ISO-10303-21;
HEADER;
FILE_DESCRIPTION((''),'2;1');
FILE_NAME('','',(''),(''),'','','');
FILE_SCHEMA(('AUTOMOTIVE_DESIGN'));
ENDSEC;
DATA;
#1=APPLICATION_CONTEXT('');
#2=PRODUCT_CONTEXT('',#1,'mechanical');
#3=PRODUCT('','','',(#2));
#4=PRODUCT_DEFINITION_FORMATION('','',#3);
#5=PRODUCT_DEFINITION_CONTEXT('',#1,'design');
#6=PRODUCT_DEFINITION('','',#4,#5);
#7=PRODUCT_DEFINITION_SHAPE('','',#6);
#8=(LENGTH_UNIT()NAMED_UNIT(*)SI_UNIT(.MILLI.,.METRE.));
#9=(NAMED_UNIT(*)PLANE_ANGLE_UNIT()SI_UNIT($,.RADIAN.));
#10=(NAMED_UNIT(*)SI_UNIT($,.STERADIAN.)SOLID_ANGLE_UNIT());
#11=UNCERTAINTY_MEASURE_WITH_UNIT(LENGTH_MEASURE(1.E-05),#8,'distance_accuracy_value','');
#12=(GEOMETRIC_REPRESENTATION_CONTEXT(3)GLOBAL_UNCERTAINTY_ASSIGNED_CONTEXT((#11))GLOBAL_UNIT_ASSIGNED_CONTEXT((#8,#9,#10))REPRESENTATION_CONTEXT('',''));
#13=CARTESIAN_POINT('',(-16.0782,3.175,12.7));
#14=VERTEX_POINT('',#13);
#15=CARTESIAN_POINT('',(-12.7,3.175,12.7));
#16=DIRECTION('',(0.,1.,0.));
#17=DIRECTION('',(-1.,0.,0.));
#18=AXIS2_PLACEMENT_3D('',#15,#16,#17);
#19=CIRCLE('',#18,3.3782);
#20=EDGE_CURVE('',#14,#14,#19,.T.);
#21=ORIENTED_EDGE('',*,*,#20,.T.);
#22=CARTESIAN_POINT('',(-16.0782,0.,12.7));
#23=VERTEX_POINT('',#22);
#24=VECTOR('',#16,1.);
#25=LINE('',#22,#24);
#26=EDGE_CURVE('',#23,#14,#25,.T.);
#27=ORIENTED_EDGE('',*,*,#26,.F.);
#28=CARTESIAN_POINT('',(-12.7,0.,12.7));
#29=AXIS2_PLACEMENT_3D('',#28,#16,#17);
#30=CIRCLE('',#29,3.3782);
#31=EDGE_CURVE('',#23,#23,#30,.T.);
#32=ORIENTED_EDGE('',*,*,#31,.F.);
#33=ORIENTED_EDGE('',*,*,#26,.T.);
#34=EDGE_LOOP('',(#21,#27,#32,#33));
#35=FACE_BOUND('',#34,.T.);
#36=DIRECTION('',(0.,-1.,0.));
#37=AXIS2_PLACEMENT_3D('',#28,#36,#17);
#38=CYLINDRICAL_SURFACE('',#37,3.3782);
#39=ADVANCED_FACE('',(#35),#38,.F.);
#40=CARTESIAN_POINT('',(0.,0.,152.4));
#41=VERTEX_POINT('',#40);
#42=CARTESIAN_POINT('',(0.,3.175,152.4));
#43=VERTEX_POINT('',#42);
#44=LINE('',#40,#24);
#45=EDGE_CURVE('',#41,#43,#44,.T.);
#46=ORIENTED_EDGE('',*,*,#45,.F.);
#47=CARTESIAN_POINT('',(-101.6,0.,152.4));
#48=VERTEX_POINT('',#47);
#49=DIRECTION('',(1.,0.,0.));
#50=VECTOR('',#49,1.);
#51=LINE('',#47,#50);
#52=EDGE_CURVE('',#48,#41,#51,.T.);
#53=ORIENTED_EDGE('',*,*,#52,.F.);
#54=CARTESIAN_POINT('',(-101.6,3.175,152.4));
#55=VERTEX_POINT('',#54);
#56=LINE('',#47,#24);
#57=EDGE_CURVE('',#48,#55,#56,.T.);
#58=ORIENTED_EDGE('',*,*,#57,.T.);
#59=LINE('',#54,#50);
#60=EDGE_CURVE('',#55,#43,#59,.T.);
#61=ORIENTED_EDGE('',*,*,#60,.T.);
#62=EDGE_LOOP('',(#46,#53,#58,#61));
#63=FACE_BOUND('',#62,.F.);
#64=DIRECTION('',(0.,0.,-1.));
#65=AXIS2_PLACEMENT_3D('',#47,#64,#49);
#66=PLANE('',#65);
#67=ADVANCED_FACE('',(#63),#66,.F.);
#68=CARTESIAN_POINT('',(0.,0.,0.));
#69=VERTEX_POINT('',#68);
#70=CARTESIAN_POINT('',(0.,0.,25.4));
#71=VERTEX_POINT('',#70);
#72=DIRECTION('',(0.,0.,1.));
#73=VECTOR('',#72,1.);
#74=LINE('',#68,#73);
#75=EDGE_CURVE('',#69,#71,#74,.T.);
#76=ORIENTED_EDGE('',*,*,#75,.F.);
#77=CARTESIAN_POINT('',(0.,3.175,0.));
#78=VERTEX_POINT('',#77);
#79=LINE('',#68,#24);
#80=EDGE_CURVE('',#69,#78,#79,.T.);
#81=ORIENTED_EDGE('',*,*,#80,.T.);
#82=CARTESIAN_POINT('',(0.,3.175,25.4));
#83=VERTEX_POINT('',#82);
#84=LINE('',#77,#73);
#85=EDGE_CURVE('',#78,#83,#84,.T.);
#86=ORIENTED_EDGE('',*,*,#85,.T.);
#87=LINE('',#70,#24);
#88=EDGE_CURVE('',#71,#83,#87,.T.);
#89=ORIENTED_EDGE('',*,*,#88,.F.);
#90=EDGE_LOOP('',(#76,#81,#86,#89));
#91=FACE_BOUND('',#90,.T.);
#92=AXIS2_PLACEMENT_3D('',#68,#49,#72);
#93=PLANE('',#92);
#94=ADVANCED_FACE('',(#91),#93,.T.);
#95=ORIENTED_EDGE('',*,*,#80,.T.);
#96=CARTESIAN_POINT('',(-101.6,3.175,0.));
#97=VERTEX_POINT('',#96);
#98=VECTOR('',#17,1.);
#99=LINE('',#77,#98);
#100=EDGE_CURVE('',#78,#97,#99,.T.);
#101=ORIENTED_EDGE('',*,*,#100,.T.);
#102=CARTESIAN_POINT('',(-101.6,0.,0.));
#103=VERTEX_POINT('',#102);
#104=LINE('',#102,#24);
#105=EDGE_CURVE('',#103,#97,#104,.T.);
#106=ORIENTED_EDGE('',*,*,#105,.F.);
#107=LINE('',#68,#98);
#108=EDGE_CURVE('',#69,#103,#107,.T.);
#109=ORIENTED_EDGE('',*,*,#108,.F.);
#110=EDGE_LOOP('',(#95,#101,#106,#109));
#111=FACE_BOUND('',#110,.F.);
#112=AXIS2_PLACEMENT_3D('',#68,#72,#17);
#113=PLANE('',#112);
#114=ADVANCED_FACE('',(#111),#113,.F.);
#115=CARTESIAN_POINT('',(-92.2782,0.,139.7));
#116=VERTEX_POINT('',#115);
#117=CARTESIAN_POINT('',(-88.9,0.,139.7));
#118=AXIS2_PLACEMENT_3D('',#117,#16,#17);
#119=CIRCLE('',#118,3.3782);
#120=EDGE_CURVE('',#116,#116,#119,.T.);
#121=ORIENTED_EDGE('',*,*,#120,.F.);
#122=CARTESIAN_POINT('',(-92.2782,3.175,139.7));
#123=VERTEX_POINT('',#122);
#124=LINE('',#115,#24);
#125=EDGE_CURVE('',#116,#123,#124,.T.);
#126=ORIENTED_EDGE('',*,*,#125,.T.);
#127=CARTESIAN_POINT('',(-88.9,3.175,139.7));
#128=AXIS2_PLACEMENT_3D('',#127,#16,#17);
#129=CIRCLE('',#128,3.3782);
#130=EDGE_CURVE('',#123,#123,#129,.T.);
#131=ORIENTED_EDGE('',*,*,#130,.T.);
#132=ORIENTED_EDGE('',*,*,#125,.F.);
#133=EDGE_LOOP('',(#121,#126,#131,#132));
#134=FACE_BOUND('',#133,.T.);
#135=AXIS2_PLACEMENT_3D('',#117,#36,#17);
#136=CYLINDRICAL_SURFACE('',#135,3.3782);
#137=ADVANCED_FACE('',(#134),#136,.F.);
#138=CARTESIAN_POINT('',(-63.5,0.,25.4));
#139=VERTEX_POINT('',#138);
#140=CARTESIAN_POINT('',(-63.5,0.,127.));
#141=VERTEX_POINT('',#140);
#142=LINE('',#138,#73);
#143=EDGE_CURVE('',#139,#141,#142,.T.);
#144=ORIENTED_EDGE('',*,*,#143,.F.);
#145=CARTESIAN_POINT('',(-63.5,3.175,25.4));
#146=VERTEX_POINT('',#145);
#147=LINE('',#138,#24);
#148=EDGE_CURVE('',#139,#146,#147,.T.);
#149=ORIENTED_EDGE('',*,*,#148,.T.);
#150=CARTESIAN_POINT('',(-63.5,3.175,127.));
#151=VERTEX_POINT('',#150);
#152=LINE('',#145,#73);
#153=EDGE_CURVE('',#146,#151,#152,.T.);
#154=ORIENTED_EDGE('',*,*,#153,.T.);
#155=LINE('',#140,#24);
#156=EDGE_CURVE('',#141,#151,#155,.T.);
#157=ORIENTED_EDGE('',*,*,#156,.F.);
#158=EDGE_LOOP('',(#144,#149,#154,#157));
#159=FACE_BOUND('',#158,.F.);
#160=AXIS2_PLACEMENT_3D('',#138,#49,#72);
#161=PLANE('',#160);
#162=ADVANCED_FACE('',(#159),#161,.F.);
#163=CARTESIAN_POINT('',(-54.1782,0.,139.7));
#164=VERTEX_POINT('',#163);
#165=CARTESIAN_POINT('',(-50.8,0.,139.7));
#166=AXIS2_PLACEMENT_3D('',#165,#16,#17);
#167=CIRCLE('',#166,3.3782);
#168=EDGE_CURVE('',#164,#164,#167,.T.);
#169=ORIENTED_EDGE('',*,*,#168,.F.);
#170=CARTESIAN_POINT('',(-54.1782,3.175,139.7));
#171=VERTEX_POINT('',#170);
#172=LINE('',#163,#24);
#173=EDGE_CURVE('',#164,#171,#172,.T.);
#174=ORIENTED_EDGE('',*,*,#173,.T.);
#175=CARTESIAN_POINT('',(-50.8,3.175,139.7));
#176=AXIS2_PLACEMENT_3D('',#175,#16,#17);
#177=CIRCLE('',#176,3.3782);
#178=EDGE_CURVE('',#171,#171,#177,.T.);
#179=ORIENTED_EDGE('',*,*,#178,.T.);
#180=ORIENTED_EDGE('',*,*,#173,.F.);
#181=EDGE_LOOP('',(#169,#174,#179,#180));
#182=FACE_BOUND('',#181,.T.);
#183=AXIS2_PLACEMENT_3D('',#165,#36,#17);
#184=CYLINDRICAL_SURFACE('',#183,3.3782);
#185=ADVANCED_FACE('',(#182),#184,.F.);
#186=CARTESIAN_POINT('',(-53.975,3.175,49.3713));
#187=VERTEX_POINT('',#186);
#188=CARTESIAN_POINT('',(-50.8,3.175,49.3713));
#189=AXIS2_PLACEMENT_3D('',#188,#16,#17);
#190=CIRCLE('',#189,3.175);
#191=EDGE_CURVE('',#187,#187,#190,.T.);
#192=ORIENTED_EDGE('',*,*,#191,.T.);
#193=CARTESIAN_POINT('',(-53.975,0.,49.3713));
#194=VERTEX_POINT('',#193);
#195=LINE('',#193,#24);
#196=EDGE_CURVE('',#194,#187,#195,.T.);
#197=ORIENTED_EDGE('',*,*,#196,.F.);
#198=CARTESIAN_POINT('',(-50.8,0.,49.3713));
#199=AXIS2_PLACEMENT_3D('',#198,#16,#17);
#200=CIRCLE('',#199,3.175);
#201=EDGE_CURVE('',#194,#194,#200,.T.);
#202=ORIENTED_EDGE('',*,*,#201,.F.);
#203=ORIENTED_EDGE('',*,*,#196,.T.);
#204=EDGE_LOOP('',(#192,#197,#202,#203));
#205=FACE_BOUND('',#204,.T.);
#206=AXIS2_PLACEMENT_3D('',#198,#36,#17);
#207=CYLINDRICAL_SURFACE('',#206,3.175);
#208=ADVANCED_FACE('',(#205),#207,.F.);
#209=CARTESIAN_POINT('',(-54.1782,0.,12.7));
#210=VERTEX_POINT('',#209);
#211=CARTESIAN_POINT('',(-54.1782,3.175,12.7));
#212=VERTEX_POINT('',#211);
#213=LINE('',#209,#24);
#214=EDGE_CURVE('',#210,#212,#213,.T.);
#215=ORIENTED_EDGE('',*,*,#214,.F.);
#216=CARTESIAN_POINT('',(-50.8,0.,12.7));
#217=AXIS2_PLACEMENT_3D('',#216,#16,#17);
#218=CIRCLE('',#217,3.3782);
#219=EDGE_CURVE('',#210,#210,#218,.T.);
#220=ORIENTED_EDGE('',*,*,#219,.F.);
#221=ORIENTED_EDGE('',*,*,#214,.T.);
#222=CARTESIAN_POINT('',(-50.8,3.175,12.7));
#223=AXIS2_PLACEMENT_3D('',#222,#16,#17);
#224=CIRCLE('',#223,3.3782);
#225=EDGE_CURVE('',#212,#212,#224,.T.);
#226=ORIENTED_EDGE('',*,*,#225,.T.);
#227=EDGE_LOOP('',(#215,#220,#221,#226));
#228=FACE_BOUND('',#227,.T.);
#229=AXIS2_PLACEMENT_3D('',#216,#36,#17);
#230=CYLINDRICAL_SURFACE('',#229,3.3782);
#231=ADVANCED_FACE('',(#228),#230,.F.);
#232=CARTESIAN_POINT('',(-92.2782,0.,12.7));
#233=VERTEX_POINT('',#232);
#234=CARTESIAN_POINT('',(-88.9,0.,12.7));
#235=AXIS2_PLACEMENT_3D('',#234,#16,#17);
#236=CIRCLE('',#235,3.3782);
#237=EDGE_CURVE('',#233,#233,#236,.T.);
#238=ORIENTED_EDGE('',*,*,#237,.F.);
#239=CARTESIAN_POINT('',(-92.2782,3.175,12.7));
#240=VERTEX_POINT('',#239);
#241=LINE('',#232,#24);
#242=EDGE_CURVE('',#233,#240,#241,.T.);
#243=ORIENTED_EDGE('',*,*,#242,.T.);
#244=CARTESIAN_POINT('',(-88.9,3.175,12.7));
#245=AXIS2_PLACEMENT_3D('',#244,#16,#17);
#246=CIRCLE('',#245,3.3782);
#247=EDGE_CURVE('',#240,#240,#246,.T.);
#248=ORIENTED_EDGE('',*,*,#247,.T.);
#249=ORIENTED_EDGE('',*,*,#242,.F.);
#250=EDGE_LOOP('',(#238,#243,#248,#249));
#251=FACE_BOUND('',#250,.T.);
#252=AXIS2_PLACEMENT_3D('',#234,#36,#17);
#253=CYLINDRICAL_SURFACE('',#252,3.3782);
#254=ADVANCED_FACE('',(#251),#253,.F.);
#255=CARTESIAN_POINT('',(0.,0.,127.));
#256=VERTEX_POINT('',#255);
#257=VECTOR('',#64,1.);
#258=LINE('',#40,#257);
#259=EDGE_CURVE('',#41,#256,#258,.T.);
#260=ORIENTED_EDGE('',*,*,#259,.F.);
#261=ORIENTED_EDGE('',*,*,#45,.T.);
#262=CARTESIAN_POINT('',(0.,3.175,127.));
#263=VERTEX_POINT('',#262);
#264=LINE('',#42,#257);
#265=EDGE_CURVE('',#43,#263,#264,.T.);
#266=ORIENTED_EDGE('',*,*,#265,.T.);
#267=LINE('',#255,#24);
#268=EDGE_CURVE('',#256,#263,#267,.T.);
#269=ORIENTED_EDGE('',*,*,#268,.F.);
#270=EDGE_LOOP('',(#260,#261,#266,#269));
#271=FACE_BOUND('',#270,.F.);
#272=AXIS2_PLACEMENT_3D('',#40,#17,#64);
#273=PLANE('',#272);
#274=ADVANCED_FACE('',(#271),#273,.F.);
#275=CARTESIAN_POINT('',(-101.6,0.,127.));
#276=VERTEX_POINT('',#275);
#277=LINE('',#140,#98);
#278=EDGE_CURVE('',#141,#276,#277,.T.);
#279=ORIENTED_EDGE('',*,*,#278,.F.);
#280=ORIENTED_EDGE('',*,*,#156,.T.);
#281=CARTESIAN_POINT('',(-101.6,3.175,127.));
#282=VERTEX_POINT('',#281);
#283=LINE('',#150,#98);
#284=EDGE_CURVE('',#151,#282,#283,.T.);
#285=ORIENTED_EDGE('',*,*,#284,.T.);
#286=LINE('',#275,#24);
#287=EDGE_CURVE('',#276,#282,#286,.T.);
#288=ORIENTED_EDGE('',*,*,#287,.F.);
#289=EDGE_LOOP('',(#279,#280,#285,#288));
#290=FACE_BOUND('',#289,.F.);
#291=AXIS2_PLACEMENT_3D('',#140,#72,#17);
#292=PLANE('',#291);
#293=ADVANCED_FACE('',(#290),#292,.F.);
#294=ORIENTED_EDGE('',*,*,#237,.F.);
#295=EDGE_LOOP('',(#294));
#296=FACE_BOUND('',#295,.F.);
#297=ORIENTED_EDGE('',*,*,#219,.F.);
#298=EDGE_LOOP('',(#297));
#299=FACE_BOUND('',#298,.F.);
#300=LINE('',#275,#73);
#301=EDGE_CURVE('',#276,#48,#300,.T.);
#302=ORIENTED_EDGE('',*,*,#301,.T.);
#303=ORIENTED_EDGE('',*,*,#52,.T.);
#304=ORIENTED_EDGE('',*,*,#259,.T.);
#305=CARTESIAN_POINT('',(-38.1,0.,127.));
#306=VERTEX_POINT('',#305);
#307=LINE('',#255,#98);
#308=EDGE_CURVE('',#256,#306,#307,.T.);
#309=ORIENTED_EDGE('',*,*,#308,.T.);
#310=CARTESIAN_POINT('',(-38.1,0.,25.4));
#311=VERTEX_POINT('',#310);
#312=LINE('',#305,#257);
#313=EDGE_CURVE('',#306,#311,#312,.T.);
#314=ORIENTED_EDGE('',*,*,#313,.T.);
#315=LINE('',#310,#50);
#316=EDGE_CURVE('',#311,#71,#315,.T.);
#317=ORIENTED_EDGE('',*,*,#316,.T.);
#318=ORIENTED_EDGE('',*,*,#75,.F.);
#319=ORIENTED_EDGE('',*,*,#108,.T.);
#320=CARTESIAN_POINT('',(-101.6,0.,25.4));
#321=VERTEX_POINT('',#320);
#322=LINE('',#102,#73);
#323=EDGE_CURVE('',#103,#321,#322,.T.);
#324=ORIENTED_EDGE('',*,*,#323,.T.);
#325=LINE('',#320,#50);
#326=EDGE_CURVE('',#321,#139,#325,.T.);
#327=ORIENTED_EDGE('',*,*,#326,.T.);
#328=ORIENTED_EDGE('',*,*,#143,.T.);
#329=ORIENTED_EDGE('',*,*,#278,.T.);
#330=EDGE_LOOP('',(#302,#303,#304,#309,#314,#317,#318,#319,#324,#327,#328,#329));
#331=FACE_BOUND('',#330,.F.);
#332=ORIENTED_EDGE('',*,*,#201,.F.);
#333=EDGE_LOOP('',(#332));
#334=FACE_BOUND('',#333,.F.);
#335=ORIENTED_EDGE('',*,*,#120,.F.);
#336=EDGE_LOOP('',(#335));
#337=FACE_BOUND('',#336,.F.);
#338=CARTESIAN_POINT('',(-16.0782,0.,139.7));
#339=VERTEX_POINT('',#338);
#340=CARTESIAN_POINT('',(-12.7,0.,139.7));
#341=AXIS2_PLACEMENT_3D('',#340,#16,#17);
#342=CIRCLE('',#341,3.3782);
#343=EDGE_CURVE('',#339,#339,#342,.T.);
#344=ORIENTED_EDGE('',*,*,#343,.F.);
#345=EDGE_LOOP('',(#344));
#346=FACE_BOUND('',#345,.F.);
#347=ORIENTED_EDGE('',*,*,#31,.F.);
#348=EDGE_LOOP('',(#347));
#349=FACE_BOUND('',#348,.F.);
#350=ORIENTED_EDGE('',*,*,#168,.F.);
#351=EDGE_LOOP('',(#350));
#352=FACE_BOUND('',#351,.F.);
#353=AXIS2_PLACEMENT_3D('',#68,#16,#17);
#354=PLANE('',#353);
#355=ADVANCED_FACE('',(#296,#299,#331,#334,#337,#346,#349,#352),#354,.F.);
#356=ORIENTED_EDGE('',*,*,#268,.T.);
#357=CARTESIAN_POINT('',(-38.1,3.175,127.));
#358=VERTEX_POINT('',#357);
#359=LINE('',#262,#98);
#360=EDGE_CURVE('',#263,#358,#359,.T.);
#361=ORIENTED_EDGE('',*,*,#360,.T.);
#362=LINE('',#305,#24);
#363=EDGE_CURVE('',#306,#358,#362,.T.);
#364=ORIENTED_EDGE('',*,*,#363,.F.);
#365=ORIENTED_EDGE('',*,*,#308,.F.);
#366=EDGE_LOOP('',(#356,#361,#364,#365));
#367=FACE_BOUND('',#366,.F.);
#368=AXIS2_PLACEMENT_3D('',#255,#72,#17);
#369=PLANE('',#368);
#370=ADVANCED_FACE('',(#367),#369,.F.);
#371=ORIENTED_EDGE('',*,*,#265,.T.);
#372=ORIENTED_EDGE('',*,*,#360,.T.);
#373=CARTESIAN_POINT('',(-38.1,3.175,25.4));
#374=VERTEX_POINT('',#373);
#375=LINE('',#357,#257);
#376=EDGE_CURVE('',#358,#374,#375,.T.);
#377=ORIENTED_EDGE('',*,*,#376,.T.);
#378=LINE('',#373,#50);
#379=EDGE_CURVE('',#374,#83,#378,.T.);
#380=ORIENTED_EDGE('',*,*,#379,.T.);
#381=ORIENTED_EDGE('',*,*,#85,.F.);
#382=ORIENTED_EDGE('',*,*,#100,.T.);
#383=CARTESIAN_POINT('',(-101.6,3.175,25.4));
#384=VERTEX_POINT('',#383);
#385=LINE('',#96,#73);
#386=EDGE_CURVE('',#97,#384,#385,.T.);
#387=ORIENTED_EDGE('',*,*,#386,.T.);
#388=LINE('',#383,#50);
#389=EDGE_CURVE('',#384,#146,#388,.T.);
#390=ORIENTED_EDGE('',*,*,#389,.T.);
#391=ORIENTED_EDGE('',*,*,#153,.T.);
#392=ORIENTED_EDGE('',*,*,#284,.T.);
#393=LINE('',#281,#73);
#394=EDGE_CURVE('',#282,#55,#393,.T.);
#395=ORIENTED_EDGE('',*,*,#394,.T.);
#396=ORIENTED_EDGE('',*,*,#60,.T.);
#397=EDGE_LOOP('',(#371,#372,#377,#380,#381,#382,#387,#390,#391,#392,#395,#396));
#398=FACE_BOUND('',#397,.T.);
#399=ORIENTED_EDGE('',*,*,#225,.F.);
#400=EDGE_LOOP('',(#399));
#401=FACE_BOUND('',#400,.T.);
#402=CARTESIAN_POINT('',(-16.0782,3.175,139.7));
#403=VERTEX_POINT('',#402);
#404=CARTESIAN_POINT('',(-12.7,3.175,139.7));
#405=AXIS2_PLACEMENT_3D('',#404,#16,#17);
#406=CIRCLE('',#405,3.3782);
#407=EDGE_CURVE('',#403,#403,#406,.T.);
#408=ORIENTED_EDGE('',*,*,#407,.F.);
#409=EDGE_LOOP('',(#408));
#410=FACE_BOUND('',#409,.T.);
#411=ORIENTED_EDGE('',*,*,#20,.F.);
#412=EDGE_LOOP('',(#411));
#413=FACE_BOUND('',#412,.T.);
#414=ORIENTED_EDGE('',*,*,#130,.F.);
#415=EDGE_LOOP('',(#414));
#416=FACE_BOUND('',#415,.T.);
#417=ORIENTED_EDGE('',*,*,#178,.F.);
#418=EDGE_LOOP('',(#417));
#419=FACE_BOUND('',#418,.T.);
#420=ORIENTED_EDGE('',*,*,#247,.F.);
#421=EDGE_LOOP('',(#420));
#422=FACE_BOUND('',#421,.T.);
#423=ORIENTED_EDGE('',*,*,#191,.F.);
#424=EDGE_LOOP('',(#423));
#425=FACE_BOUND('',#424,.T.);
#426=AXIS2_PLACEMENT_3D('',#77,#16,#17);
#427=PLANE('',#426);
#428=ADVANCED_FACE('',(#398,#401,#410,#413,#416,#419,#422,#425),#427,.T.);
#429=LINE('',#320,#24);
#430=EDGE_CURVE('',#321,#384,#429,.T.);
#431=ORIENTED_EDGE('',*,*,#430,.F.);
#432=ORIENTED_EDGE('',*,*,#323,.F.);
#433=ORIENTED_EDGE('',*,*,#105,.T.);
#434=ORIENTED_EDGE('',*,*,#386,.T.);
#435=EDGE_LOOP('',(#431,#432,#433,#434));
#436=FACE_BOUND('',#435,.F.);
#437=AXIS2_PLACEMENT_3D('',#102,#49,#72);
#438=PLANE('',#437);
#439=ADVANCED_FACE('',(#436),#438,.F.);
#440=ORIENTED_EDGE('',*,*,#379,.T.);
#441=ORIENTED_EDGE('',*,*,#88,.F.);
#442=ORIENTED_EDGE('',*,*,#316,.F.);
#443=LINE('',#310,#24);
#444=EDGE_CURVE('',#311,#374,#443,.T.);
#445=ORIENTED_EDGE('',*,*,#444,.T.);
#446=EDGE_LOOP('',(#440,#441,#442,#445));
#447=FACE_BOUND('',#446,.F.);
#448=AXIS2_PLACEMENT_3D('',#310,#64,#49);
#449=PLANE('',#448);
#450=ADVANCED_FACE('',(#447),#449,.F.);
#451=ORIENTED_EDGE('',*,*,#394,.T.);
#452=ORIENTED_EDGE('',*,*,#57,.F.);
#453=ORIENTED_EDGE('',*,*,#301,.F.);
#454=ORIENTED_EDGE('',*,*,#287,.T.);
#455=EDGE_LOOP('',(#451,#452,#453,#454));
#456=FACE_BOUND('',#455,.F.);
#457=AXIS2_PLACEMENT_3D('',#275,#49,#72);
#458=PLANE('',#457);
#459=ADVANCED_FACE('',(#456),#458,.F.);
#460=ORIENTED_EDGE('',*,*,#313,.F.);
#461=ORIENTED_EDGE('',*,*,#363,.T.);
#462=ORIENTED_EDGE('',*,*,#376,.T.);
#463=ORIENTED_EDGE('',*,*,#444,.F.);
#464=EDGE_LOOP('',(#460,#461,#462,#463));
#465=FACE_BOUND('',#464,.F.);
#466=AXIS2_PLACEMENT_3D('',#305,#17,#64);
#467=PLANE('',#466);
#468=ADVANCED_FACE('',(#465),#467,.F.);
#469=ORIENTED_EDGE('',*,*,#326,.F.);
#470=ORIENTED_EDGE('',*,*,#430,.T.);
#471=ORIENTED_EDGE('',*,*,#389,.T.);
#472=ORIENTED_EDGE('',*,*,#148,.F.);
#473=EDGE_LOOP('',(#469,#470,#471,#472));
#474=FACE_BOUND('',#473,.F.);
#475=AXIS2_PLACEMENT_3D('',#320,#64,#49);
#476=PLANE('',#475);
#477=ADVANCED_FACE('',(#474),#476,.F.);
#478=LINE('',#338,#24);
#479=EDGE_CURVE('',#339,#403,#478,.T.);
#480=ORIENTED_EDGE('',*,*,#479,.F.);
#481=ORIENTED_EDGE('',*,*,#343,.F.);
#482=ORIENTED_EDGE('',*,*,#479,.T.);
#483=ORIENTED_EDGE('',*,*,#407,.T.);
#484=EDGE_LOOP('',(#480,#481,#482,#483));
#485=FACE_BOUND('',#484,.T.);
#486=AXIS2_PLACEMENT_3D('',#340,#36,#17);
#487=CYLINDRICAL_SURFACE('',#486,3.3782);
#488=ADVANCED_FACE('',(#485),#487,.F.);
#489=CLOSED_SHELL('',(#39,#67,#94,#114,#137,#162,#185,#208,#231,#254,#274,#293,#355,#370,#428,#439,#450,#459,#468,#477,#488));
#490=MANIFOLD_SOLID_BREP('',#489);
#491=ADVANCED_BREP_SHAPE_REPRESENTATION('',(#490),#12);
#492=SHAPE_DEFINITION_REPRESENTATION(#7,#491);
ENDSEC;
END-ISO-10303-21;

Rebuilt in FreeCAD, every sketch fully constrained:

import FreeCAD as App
import Part
import Sketcher
from FreeCAD import Vector
Q = App.Units.Quantity


def add_polygon(sketch, points):
    """Adds a closed chain of lines whose ends are joined by coincident constraints."""
    first, n = sketch.GeometryCount, len(points)
    for a, b in zip(points, points[1:] + points[:1]):
        sketch.addGeometry(Part.LineSegment(App.Vector(*a, 0), App.Vector(*b, 0)), False)
    for i in range(n):
        sketch.addConstraint(Sketcher.Constraint("Coincident", first + i, 2, first + (i + 1) % n, 1))

doc = App.newDocument("Part")
body = doc.addObject("PartDesign::Body", "Body")

sketch1 = body.newObject("Sketcher::SketchObject", "Sketch")
sketch1.AttachmentSupport = (doc.getObject("XZ_Plane"), [""])
sketch1.MapMode = "FlatFace"
add_polygon(sketch1, [(0, 25.4), (0, 0), (-101.6, 0), (-101.6, 25.4), (-63.5, 25.4), (-63.5, 127), (-101.6, 127), (-101.6, 152.4), (0, 152.4), (0, 127), (-38.1, 127), (-38.1, 25.4)])
sketch1.addGeometry(Part.Circle(Vector(-12.7, 12.7, 0), Vector(0, 0, 1), 3.4), False)
sketch1.addGeometry(Part.Circle(Vector(-50.8, 12.7, 0), Vector(0, 0, 1), 3.4), False)
sketch1.addGeometry(Part.Circle(Vector(-50.8, 49.4, 0), Vector(0, 0, 1), 3.2), False)
sketch1.addGeometry(Part.Circle(Vector(-88.9, 12.7, 0), Vector(0, 0, 1), 3.4), False)
sketch1.addGeometry(Part.Circle(Vector(-12.7, 139.7, 0), Vector(0, 0, 1), 3.4), False)
sketch1.addGeometry(Part.Circle(Vector(-50.8, 139.7, 0), Vector(0, 0, 1), 3.4), False)
sketch1.addGeometry(Part.Circle(Vector(-88.9, 139.7, 0), Vector(0, 0, 1), 3.4), False)
sketch1.addConstraint([
    Sketcher.Constraint("Vertical", 0),
    Sketcher.Constraint("Horizontal", 1),
    Sketcher.Constraint("Vertical", 2),
    Sketcher.Constraint("Horizontal", 3),
    Sketcher.Constraint("Vertical", 4),
    Sketcher.Constraint("Horizontal", 5),
    Sketcher.Constraint("Vertical", 6),
    Sketcher.Constraint("Horizontal", 7),
    Sketcher.Constraint("Vertical", 8),
    Sketcher.Constraint("Horizontal", 9),
    Sketcher.Constraint("Vertical", 10),
    Sketcher.Constraint("Horizontal", 11),
    Sketcher.Constraint("Coincident", 0, 2, -1, 1),
    Sketcher.Constraint("Equal", 12, 13),
    Sketcher.Constraint("Equal", 13, 15),
    Sketcher.Constraint("Equal", 15, 16),
    Sketcher.Constraint("Equal", 16, 17),
    Sketcher.Constraint("Equal", 17, 18),
    Sketcher.Constraint("PointOnObject", 7, 2, -2),
    Sketcher.Constraint("Horizontal", 12, 3, 13, 3),
    Sketcher.Constraint("Horizontal", 13, 3, 15, 3),
    Sketcher.Constraint("Horizontal", 16, 3, 17, 3),
    Sketcher.Constraint("Horizontal", 17, 3, 18, 3),
    Sketcher.Constraint("Horizontal", 5, 2, 8, 2),
    Sketcher.Constraint("Horizontal", 3, 2, 10, 2),
    Sketcher.Constraint("Vertical", 13, 3, 14, 3),
    Sketcher.Constraint("Vertical", 12, 3, 16, 3),
    Sketcher.Constraint("Vertical", 14, 3, 17, 3),
    Sketcher.Constraint("Vertical", 15, 3, 18, 3),
    Sketcher.Constraint("Vertical", 2, 2, 5, 2),
    Sketcher.Constraint("Equal", 5, 9),
    Sketcher.Constraint("Equal", 7, 4),
    Sketcher.Constraint("Equal", 2, 6),
    Sketcher.Constraint("DistanceX", 1, 2, 1, 1, Q("4 in")),
    Sketcher.Constraint("DistanceY", 0, 2, 0, 1, Q("1 in")),
    Sketcher.Constraint("Diameter", 12, Q("0.266 in")),
    Sketcher.Constraint("DistanceX", 3, 1, 3, 2, Q("1.5 in")),
    Sketcher.Constraint("DistanceY", 12, 3, 16, 3, Q("5 in")),
    Sketcher.Constraint("DistanceX", 15, 3, 3, 2, Q("1 in")),
    Sketcher.Constraint("DistanceX", 9, 2, 16, 3, Q("1 in")),
    Sketcher.Constraint("DistanceY", -1, 1, 12, 3, Q("0.5 in")),
    Sketcher.Constraint("DistanceX", 13, 3, 12, 3, Q("1.5 in")),
    Sketcher.Constraint("Diameter", 14, Q("0.25 in")),
    Sketcher.Constraint("DistanceY", 2, 2, 14, 3, 23.9713),
])
pad1 = body.newObject("PartDesign::Pad", "Pad")
pad1.Profile = sketch1
pad1.Length = Q("0.125 in")
pad1.Reversed = True

doc.recompute()
